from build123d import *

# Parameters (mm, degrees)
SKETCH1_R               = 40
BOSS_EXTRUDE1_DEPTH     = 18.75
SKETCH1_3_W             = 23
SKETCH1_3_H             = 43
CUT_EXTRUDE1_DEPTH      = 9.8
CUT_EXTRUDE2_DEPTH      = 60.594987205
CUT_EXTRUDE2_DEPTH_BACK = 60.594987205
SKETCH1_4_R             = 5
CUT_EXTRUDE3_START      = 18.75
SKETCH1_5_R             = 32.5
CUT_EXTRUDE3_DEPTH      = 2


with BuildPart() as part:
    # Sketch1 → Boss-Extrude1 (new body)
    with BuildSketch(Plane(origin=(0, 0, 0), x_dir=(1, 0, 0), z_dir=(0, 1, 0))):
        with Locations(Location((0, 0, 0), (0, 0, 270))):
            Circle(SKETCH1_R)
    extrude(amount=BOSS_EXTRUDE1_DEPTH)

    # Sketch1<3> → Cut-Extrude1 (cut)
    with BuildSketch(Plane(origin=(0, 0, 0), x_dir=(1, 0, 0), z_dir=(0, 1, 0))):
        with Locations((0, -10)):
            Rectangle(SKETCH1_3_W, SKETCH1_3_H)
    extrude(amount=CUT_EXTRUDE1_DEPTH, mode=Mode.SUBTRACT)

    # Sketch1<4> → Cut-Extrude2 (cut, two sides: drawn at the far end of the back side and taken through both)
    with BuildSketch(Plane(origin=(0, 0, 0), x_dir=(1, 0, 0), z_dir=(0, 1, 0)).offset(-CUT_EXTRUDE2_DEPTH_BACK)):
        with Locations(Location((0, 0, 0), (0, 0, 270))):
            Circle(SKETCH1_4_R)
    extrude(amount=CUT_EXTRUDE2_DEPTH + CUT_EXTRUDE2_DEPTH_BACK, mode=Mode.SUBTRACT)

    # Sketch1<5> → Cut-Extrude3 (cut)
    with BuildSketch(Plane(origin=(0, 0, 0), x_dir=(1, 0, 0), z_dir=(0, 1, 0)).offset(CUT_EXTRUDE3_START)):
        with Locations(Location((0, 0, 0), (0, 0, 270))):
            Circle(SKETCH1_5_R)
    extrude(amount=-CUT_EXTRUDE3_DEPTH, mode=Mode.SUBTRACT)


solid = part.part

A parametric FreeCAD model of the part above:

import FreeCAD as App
import Part
import Sketcher

doc = App.newDocument("Part")
body = doc.addObject("PartDesign::Body", "Body")

sketch1 = doc.addObject("Sketcher::SketchObject", "Sketch")
body.addObject(sketch1)
sketch1.AttachmentSupport = (doc.XZ_Plane, [""])
sketch1.MapMode = "FlatFace"
sketch1.addGeometry(Part.Circle(App.Vector(0, 0, 0), App.Vector(0, 0, 1), 40), False)
sketch1.addConstraint([
    Sketcher.Constraint("Coincident", 0, 3, -1, 1),
    Sketcher.Constraint("Diameter", 0, 80.0),
])
pad1 = doc.addObject("PartDesign::Pad", "Pad")
body.addObject(pad1)
pad1.Profile = sketch1
pad1.Length = 18.75
pad1.Reversed = True

sketch2 = doc.addObject("Sketcher::SketchObject", "Sketch001")
body.addObject(sketch2)
sketch2.AttachmentSupport = (doc.XZ_Plane, [""])
sketch2.MapMode = "FlatFace"
sketch2.addGeometry([
    Part.LineSegment(App.Vector(-12, -12, 0), App.Vector(-12, 32, 0)),
    Part.LineSegment(App.Vector(-12, 32, 0), App.Vector(12, 32, 0)),
    Part.LineSegment(App.Vector(12, 32, 0), App.Vector(12, -12, 0)),
    Part.LineSegment(App.Vector(12, -12, 0), App.Vector(-12, -12, 0)),
], False)
sketch2.addConstraint([
    Sketcher.Constraint("Coincident", 0, 2, 1, 1),
    Sketcher.Constraint("Coincident", 1, 2, 2, 1),
    Sketcher.Constraint("Coincident", 2, 2, 3, 1),
    Sketcher.Constraint("Coincident", 3, 2, 0, 1),
    Sketcher.Constraint("Vertical", 0),
    Sketcher.Constraint("Horizontal", 1),
    Sketcher.Constraint("Vertical", 2),
    Sketcher.Constraint("Horizontal", 3),
    Sketcher.Constraint("DistanceX", 1, 1, 1, 2, 23.0),
    Sketcher.Constraint("DistanceY", 0, 1, 0, 2, 43.0),
    Sketcher.Constraint("DistanceX", 0, 2, -1, 1, 11.5),
    Sketcher.Constraint("DistanceY", -1, 1, 0, 2, 31.5),
])
pocket1 = doc.addObject("PartDesign::Pocket", "Pocket")
body.addObject(pocket1)
pocket1.Profile = sketch2
pocket1.Length = 9.8

sketch3 = doc.addObject("Sketcher::SketchObject", "Sketch002")
body.addObject(sketch3)
sketch3.AttachmentSupport = (doc.XZ_Plane, [""])
sketch3.MapMode = "FlatFace"
sketch3.addGeometry(Part.Circle(App.Vector(0, 0, 0), App.Vector(0, 0, 1), 5), False)
sketch3.addConstraint([
    Sketcher.Constraint("Coincident", 0, 3, -1, 1),
    Sketcher.Constraint("Diameter", 0, 10.0),
])
pocket2 = doc.addObject("PartDesign::Pocket", "Pocket001")
body.addObject(pocket2)
pocket2.Profile = sketch3
pocket2.Type = "ThroughAll"
pocket2.Midplane = True

sketch4 = doc.addObject("Sketcher::SketchObject", "Sketch003")
body.addObject(sketch4)
sketch4.AttachmentSupport = (doc.XZ_Plane, [""])
sketch4.MapMode = "FlatFace"
sketch4.AttachmentOffset = App.Placement(App.Vector(0, 0, -18.75), App.Rotation())
sketch4.addGeometry(Part.Circle(App.Vector(0, 0, 0), App.Vector(0, 0, 1), 32), False)
sketch4.addConstraint([
    Sketcher.Constraint("Coincident", 0, 3, -1, 1),
    Sketcher.Constraint("Diameter", 0, 65.0),
])
pocket3 = doc.addObject("PartDesign::Pocket", "Pocket002")
body.addObject(pocket3)
pocket3.Profile = sketch4
pocket3.Length = 2
pocket3.Reversed = True

doc.recompute()
